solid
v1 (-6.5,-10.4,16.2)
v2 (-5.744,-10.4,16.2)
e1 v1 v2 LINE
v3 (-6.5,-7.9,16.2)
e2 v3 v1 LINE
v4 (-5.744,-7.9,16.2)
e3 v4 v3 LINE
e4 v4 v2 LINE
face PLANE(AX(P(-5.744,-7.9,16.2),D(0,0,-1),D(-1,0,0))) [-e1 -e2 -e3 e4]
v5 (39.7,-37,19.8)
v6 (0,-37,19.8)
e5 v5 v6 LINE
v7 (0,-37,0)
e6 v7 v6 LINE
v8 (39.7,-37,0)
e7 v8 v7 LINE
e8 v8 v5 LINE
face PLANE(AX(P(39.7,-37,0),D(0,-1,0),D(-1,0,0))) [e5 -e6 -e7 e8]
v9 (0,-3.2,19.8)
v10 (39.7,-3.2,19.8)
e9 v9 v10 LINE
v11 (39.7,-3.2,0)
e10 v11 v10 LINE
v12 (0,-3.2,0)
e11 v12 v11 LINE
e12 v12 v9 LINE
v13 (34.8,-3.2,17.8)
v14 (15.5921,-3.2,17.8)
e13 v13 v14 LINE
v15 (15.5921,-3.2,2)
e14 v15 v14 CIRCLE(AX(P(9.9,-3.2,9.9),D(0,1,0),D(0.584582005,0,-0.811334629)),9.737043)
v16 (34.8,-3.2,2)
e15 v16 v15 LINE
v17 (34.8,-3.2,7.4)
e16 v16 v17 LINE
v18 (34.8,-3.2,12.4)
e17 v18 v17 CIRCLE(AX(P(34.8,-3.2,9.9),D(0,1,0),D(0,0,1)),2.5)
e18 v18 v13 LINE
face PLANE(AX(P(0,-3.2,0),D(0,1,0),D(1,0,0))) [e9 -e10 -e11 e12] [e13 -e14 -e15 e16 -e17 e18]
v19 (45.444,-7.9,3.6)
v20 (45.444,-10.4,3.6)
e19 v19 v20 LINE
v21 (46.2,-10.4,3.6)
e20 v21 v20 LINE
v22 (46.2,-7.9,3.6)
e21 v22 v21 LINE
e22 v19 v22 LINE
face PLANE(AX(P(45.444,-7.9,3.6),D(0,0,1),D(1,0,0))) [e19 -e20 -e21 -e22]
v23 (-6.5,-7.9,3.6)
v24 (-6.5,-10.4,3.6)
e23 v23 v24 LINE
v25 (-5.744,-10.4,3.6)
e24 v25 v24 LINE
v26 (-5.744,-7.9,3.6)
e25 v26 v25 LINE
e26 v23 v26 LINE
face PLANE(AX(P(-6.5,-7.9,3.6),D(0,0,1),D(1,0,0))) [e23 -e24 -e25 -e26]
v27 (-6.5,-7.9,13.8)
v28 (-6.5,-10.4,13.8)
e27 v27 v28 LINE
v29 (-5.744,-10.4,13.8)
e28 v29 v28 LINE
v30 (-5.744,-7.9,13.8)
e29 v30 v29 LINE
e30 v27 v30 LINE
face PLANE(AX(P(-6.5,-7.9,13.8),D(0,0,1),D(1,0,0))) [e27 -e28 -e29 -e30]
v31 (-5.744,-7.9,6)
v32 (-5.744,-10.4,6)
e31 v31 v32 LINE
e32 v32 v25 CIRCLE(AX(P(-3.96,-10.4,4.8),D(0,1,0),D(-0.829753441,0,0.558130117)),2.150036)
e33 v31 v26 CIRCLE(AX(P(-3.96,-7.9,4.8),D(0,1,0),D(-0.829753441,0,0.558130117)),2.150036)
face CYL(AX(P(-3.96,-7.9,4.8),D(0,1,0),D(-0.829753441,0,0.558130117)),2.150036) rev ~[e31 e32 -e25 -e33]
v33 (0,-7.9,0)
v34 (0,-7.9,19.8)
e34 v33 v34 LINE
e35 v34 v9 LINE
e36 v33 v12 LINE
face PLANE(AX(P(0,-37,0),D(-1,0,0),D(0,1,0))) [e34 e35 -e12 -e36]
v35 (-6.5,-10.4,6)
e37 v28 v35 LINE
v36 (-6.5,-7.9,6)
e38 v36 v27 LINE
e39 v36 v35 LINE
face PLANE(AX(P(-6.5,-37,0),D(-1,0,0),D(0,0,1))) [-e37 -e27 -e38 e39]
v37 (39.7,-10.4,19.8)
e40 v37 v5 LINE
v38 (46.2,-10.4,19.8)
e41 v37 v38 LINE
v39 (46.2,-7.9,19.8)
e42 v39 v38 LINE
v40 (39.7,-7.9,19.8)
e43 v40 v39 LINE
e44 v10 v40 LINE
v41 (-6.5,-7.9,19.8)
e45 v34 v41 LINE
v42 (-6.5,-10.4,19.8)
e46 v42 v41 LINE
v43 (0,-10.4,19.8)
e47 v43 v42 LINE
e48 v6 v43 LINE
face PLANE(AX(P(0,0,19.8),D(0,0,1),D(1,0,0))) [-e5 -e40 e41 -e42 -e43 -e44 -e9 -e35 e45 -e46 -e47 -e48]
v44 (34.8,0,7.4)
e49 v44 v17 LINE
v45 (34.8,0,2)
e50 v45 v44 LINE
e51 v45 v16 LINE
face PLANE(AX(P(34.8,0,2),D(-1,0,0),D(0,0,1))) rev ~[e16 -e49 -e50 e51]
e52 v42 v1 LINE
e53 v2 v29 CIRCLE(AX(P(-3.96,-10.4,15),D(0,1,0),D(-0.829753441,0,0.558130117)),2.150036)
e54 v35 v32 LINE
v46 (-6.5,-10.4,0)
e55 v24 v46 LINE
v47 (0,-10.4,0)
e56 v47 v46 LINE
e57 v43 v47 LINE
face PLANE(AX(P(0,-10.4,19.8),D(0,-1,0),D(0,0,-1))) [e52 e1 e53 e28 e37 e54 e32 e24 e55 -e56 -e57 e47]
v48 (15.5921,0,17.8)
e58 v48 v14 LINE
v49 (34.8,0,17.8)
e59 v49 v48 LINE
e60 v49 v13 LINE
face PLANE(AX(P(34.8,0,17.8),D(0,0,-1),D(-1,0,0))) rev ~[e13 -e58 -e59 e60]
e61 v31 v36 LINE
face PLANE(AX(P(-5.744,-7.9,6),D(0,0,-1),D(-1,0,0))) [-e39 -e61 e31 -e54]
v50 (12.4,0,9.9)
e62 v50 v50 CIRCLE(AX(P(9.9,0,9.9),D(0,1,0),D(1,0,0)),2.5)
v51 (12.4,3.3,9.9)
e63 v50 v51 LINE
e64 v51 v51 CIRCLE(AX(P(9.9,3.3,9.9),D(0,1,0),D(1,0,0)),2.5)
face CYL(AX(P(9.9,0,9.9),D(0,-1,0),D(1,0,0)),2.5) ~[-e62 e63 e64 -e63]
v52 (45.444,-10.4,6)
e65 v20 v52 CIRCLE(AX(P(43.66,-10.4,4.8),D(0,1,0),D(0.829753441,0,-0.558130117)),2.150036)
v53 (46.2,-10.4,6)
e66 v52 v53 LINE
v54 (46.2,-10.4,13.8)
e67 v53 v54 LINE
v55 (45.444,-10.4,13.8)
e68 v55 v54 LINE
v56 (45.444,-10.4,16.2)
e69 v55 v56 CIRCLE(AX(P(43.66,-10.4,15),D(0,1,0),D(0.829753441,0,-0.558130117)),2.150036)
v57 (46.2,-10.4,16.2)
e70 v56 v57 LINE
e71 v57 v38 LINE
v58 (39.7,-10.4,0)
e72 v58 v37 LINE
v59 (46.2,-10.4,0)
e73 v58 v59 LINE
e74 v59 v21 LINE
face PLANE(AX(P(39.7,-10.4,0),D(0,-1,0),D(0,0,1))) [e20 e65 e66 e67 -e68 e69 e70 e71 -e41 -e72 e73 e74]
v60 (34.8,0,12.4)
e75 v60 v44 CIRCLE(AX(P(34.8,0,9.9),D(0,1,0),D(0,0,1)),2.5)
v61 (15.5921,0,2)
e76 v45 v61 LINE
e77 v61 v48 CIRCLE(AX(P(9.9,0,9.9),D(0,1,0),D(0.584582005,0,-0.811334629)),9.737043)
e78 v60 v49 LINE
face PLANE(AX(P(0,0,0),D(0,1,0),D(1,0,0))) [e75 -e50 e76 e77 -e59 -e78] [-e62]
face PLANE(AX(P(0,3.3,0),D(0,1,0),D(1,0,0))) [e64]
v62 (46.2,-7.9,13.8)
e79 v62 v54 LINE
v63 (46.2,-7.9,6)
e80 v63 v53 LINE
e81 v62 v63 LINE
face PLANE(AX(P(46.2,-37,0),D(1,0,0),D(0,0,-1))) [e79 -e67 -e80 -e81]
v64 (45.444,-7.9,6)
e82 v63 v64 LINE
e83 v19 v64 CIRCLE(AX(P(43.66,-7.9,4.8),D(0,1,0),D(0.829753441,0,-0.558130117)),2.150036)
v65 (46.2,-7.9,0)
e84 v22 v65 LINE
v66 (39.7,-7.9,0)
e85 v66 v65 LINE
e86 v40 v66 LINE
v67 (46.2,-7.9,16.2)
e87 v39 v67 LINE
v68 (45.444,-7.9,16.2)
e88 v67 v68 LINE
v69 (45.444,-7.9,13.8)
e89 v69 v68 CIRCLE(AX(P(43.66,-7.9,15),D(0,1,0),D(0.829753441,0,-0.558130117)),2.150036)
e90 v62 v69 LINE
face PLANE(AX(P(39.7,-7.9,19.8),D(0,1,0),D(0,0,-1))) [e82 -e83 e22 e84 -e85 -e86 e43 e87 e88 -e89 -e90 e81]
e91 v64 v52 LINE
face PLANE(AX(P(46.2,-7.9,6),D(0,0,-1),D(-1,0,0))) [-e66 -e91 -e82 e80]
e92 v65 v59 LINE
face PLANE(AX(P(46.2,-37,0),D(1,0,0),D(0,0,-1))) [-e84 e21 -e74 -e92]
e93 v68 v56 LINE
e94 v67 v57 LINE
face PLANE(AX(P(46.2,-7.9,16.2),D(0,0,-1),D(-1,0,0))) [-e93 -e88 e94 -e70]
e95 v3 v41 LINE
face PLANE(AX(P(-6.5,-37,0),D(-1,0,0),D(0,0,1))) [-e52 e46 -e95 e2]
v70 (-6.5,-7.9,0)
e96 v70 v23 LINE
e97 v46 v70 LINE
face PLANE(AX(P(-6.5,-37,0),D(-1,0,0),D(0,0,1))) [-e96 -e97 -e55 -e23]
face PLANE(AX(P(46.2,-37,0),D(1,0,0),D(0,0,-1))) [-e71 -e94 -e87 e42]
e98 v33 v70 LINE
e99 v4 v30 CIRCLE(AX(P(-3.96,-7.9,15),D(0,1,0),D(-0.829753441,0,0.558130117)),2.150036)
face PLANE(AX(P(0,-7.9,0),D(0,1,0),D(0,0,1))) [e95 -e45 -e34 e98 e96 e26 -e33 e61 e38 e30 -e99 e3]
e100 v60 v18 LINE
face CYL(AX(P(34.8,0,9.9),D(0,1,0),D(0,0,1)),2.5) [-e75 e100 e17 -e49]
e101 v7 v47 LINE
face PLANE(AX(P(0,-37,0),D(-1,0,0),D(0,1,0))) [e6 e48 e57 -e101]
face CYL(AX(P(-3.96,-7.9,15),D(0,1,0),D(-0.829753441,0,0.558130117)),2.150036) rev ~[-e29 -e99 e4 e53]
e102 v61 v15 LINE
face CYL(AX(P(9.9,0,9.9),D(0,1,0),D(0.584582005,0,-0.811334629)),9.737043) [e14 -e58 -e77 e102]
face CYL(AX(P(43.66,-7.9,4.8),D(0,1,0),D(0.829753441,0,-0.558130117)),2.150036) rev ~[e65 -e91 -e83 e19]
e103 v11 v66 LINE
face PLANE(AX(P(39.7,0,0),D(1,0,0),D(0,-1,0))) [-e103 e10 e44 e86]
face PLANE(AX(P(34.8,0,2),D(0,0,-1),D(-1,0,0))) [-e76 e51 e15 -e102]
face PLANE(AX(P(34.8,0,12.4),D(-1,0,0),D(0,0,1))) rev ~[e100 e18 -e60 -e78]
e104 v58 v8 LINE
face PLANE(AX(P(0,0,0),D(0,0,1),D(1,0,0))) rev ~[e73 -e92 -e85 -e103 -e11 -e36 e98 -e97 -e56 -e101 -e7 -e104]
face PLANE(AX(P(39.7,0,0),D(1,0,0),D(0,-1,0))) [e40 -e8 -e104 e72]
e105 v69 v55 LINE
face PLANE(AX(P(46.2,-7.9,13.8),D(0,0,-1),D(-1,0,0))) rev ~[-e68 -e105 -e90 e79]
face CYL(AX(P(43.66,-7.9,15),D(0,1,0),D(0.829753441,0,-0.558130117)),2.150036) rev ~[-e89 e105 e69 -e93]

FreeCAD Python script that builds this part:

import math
import FreeCAD as App
import Part
import Sketcher

V = App.Vector
Q = App.Units.Quantity

doc = App.newDocument("Part")
body = doc.addObject("PartDesign::Body", "Body")

# Sketch on XY plane
sketch1 = body.newObject("Sketcher::SketchObject", "Sketch")
sketch1.AttachmentSupport = (doc.getObject("XY_Plane"), [""])
sketch1.MapMode = "FlatFace"
sketch1.addGeometry(Part.LineSegment(V(40, 0, 0), V(0, 0, 0)), False)
sketch1.addGeometry(Part.LineSegment(V(0, 0, 0), V(0, -37, 0)), False)
sketch1.addGeometry(Part.LineSegment(V(0, -37, 0), V(40, -37, 0)), False)
sketch1.addGeometry(Part.LineSegment(V(40, -37, 0), V(40, 0, 0)), False)
sketch1.addConstraint(Sketcher.Constraint("Coincident", 0, 2, 1, 1))
sketch1.addConstraint(Sketcher.Constraint("Coincident", 1, 2, 2, 1))
sketch1.addConstraint(Sketcher.Constraint("Coincident", 2, 2, 3, 1))
sketch1.addConstraint(Sketcher.Constraint("Coincident", 3, 2, 0, 1))
sketch1.addConstraint(Sketcher.Constraint("Horizontal", 0))
sketch1.addConstraint(Sketcher.Constraint("Vertical", 1))
sketch1.addConstraint(Sketcher.Constraint("Horizontal", 2))
sketch1.addConstraint(Sketcher.Constraint("Vertical", 3))
sketch1.addConstraint(Sketcher.Constraint("Coincident", 0, 2, -1, 1))
sketch1.addConstraint(Sketcher.Constraint("DistanceY", 1, 2, 1, 1, Q("37 mm")))
sketch1.addConstraint(Sketcher.Constraint("DistanceX", 0, 2, 0, 1, Q("39.7 mm")))
pad1 = body.newObject("PartDesign::Pad", "Pad")
pad1.Profile = sketch1
pad1.Length = 19.8

# Sketch on YZ plane
sketch2 = body.newObject("Sketcher::SketchObject", "Sketch001")
sketch2.AttachmentSupport = (doc.getObject("YZ_Plane"), [""])
sketch2.MapMode = "FlatFace"
sketch2.AttachmentOffset = App.Placement(V(0, 0, 39.7), App.Rotation())
sketch2.addGeometry(Part.LineSegment(V(-7.9, 0, 0), V(-7.9, 19.8, 0)), False)
sketch2.addGeometry(Part.LineSegment(V(-7.9, 19.8, 0), V(-10.4, 19.8, 0)), False)
sketch2.addGeometry(Part.LineSegment(V(-10.4, 19.8, 0), V(-10.4, 0, 0)), False)
sketch2.addGeometry(Part.LineSegment(V(-10.4, 0, 0), V(-7.9, 0, 0)), False)
sketch2.addConstraint(Sketcher.Constraint("Coincident", 0, 2, 1, 1))
sketch2.addConstraint(Sketcher.Constraint("Coincident", 1, 2, 2, 1))
sketch2.addConstraint(Sketcher.Constraint("Coincident", 2, 2, 3, 1))
sketch2.addConstraint(Sketcher.Constraint("Coincident", 3, 2, 0, 1))
sketch2.addConstraint(Sketcher.Constraint("Vertical", 0))
sketch2.addConstraint(Sketcher.Constraint("Horizontal", 1))
sketch2.addConstraint(Sketcher.Constraint("Vertical", 2))
sketch2.addConstraint(Sketcher.Constraint("Horizontal", 3))
sketch2.addConstraint(Sketcher.Constraint("PointOnObject", 2, 2, -1))
sketch2.addConstraint(Sketcher.Constraint("DistanceX", 1, 2, 1, 1, Q("2.5 mm")))
sketch2.addConstraint(Sketcher.Constraint("DistanceX", 1, 2, -1, 1, Q("10.4 mm")))
sketch2.addConstraint(Sketcher.Constraint("DistanceY", 0, 1, 0, 2, Q("19.8 mm")))
pad2 = body.newObject("PartDesign::Pad", "Pad001")
pad2.Profile = sketch2
pad2.Length = 6.5

# Sketch on XZ plane
sketch3 = body.newObject("Sketcher::SketchObject", "Sketch002")
sketch3.AttachmentSupport = (doc.getObject("XZ_Plane"), [""])
sketch3.MapMode = "FlatFace"
sketch3.AttachmentOffset = App.Placement(V(0, 0, 7.9), App.Rotation())
sketch3.addGeometry(Part.LineSegment(V(45.4, 16.2, 0), V(46.2, 16.2, 0)), False)
sketch3.addGeometry(Part.LineSegment(V(46.2, 16.2, 0), V(46.2, 13.8, 0)), False)
sketch3.addGeometry(Part.LineSegment(V(46.2, 13.8, 0), V(45.4, 13.8, 0)), False)
sketch3.addGeometry(Part.ArcOfCircle(Part.Circle(V(43.7, 15, 0), V(0, 0, 1), 2.2), math.radians(34), math.radians(326)), False)
sketch3.addGeometry(Part.LineSegment(V(45.4, 6, 0), V(46.2, 6, 0)), False)
sketch3.addGeometry(Part.LineSegment(V(46.2, 6, 0), V(46.2, 3.6, 0)), False)
sketch3.addGeometry(Part.LineSegment(V(46.2, 3.6, 0), V(45.4, 3.6, 0)), False)
sketch3.addGeometry(Part.ArcOfCircle(Part.Circle(V(43.7, 4.8, 0), V(0, 0, 1), 2.2), math.radians(34), math.radians(326)), False)
sketch3.addConstraint(Sketcher.Constraint("Coincident", 0, 2, 1, 1))
sketch3.addConstraint(Sketcher.Constraint("Coincident", 1, 2, 2, 1))
sketch3.addConstraint(Sketcher.Constraint("Coincident", 2, 2, 3, 2))
sketch3.addConstraint(Sketcher.Constraint("Coincident", 3, 1, 0, 1))
sketch3.addConstraint(Sketcher.Constraint("Coincident", 4, 2, 5, 1))
sketch3.addConstraint(Sketcher.Constraint("Coincident", 5, 2, 6, 1))
sketch3.addConstraint(Sketcher.Constraint("Coincident", 6, 2, 7, 2))
sketch3.addConstraint(Sketcher.Constraint("Coincident", 7, 1, 4, 1))
sketch3.addConstraint(Sketcher.Constraint("Horizontal", 0))
sketch3.addConstraint(Sketcher.Constraint("Vertical", 1))
sketch3.addConstraint(Sketcher.Constraint("Horizontal", 2))
sketch3.addConstraint(Sketcher.Constraint("Horizontal", 4))
sketch3.addConstraint(Sketcher.Constraint("Vertical", 5))
sketch3.addConstraint(Sketcher.Constraint("Horizontal", 6))
sketch3.addConstraint(Sketcher.Constraint("Equal", 3, 7))
sketch3.addConstraint(Sketcher.Constraint("Vertical", 3, 3, 7, 3))
sketch3.addConstraint(Sketcher.Constraint("Vertical", 2, 2, 3, 1))
sketch3.addConstraint(Sketcher.Constraint("Vertical", 1, 2, 4, 2))
sketch3.addConstraint(Sketcher.Constraint("Vertical", 3, 1, 6, 2))
sketch3.addConstraint(Sketcher.Constraint("Vertical", 6, 2, 7, 1))
sketch3.addConstraint(Sketcher.Constraint("Radius", 3, Q("2.15 mm")))
sketch3.addConstraint(Sketcher.Constraint("DistanceY", 1, 2, 1, 1, Q("2.4 mm")))
sketch3.addConstraint(Sketcher.Constraint("DistanceY", -1, 1, 3, 3, Q("15 mm")))
sketch3.addConstraint(Sketcher.Constraint("DistanceY", -1, 1, 4, 2, Q("6 mm")))
sketch3.addConstraint(Sketcher.Constraint("DistanceX", -1, 1, 0, 2, Q("46.2 mm")))
sketch3.addConstraint(Sketcher.Constraint("DistanceX", 0, 1, 0, 2, Q("0.756 mm")))
pocket1 = body.newObject("PartDesign::Pocket", "Pocket")
pocket1.Profile = sketch3
pocket1.Length = 6.5
pocket1.Reversed = True

# Sketch on YZ plane
sketch4 = body.newObject("Sketcher::SketchObject", "Sketch003")
sketch4.AttachmentSupport = (doc.getObject("YZ_Plane"), [""])
sketch4.MapMode = "FlatFace"
sketch4.addGeometry(Part.LineSegment(V(-10.4, 0, 0), V(-10.4, 19.8, 0)), False)
sketch4.addGeometry(Part.LineSegment(V(-10.4, 19.8, 0), V(-7.9, 19.8, 0)), False)
sketch4.addGeometry(Part.LineSegment(V(-7.9, 19.8, 0), V(-7.9, 0, 0)), False)
sketch4.addGeometry(Part.LineSegment(V(-7.9, 0, 0), V(-10.4, 0, 0)), False)
sketch4.addConstraint(Sketcher.Constraint("Coincident", 0, 2, 1, 1))
sketch4.addConstraint(Sketcher.Constraint("Coincident", 1, 2, 2, 1))
sketch4.addConstraint(Sketcher.Constraint("Coincident", 2, 2, 3, 1))
sketch4.addConstraint(Sketcher.Constraint("Coincident", 3, 2, 0, 1))
sketch4.addConstraint(Sketcher.Constraint("Vertical", 0))
sketch4.addConstraint(Sketcher.Constraint("Horizontal", 1))
sketch4.addConstraint(Sketcher.Constraint("Vertical", 2))
sketch4.addConstraint(Sketcher.Constraint("Horizontal", 3))
sketch4.addConstraint(Sketcher.Constraint("PointOnObject", 2, 2, -1))
sketch4.addConstraint(Sketcher.Constraint("DistanceX", 1, 1, 1, 2, Q("2.5 mm")))
sketch4.addConstraint(Sketcher.Constraint("DistanceX", 0, 2, -1, 1, Q("10.4 mm")))
sketch4.addConstraint(Sketcher.Constraint("DistanceY", 0, 1, 0, 2, Q("19.8 mm")))
pad3 = body.newObject("PartDesign::Pad", "Pad002")
pad3.Profile = sketch4
pad3.Length = 6.5
pad3.Reversed = True

# Sketch on XZ plane
sketch5 = body.newObject("Sketcher::SketchObject", "Sketch004")
sketch5.AttachmentSupport = (doc.getObject("XZ_Plane"), [""])
sketch5.MapMode = "FlatFace"
sketch5.AttachmentOffset = App.Placement(V(0, 0, 7.9), App.Rotation())
sketch5.addGeometry(Part.LineSegment(V(-5.7, 3.6, 0), V(-6.5, 3.6, 0)), False)
sketch5.addGeometry(Part.LineSegment(V(-6.5, 3.6, 0), V(-6.5, 6, 0)), False)
sketch5.addGeometry(Part.LineSegment(V(-6.5, 6, 0), V(-5.7, 6, 0)), False)
sketch5.addGeometry(Part.ArcOfCircle(Part.Circle(V(-4, 4.8, 0), V(0, 0, 1), 2.2), math.radians(-146), math.radians(146)), False)
sketch5.addGeometry(Part.LineSegment(V(-5.7, 13.8, 0), V(-6.5, 13.8, 0)), False)
sketch5.addGeometry(Part.LineSegment(V(-6.5, 13.8, 0), V(-6.5, 16.2, 0)), False)
sketch5.addGeometry(Part.LineSegment(V(-6.5, 16.2, 0), V(-5.7, 16.2, 0)), False)
sketch5.addGeometry(Part.ArcOfCircle(Part.Circle(V(-4, 15, 0), V(0, 0, 1), 2.2), math.radians(-146), math.radians(146)), False)
sketch5.addConstraint(Sketcher.Constraint("Coincident", 0, 2, 1, 1))
sketch5.addConstraint(Sketcher.Constraint("Coincident", 1, 2, 2, 1))
sketch5.addConstraint(Sketcher.Constraint("Coincident", 2, 2, 3, 2))
sketch5.addConstraint(Sketcher.Constraint("Coincident", 3, 1, 0, 1))
sketch5.addConstraint(Sketcher.Constraint("Coincident", 4, 2, 5, 1))
sketch5.addConstraint(Sketcher.Constraint("Coincident", 5, 2, 6, 1))
sketch5.addConstraint(Sketcher.Constraint("Coincident", 6, 2, 7, 2))
sketch5.addConstraint(Sketcher.Constraint("Coincident", 7, 1, 4, 1))
sketch5.addConstraint(Sketcher.Constraint("Horizontal", 0))
sketch5.addConstraint(Sketcher.Constraint("Vertical", 1))
sketch5.addConstraint(Sketcher.Constraint("Horizontal", 2))
sketch5.addConstraint(Sketcher.Constraint("Horizontal", 4))
sketch5.addConstraint(Sketcher.Constraint("Vertical", 5))
sketch5.addConstraint(Sketcher.Constraint("Horizontal", 6))
sketch5.addConstraint(Sketcher.Constraint("Equal", 3, 7))
sketch5.addConstraint(Sketcher.Constraint("Vertical", 3, 3, 7, 3))
sketch5.addConstraint(Sketcher.Constraint("Vertical", 2, 2, 3, 1))
sketch5.addConstraint(Sketcher.Constraint("Vertical", 1, 2, 4, 2))
sketch5.addConstraint(Sketcher.Constraint("Vertical", 3, 1, 6, 2))
sketch5.addConstraint(Sketcher.Constraint("Vertical", 6, 2, 7, 1))
sketch5.addConstraint(Sketcher.Constraint("Radius", 3, Q("2.15 mm")))
sketch5.addConstraint(Sketcher.Constraint("DistanceY", 1, 1, 1, 2, Q("2.4 mm")))
sketch5.addConstraint(Sketcher.Constraint("DistanceY", -1, 1, 7, 3, Q("15 mm")))
sketch5.addConstraint(Sketcher.Constraint("DistanceY", -1, 1, 1, 2, Q("6 mm")))
sketch5.addConstraint(Sketcher.Constraint("DistanceX", 0, 2, -1, 1, Q("6.5 mm")))
sketch5.addConstraint(Sketcher.Constraint("DistanceX", 0, 2, 0, 1, Q("0.756 mm")))
pocket2 = body.newObject("PartDesign::Pocket", "Pocket001")
pocket2.Profile = sketch5
pocket2.Length = 6.5
pocket2.Reversed = True

# Sketch on XZ plane
sketch6 = body.newObject("Sketcher::SketchObject", "Sketch005")
sketch6.AttachmentSupport = (doc.getObject("XZ_Plane"), [""])
sketch6.MapMode = "FlatFace"
sketch6.addGeometry(Part.Circle(V(9.9, 9.9, 0), V(0, 0, 1), 2.5), False)
sketch6.addConstraint(Sketcher.Constraint("Diameter", 0, Q("5 mm")))
sketch6.addConstraint(Sketcher.Constraint("DistanceX", -1, 1, 0, 3, Q("9.9 mm")))
sketch6.addConstraint(Sketcher.Constraint("DistanceY", -1, 1, 0, 3, Q("9.9 mm")))
pad4 = body.newObject("PartDesign::Pad", "Pad003")
pad4.Profile = sketch6
pad4.Length = 3.3
pad4.Reversed = True

# Sketch on XZ plane
sketch7 = body.newObject("Sketcher::SketchObject", "Sketch006")
sketch7.AttachmentSupport = (doc.getObject("XZ_Plane"), [""])
sketch7.MapMode = "FlatFace"
sketch7.addGeometry(Part.LineSegment(V(0, 0, 0), V(0, 19.8, 0)), False)
sketch7.addGeometry(Part.LineSegment(V(0, 19.8, 0), V(39.7, 19.8, 0)), False)
sketch7.addGeometry(Part.LineSegment(V(39.7, 19.8, 0), V(39.7, 0, 0)), False)
sketch7.addGeometry(Part.LineSegment(V(39.7, 0, 0), V(0, 0, 0)), False)
sketch7.addGeometry(Part.ArcOfCircle(Part.Circle(V(9.9, 9.9, 0), V(0, 0, 1), 9.7), math.radians(54), math.radians(306)), False)
sketch7.addGeometry(Part.LineSegment(V(15.6, 2, 0), V(34.8, 2, 0)), False)
sketch7.addGeometry(Part.LineSegment(V(34.8, 2, 0), V(34.8, 7.4, 0)), False)
sketch7.addGeometry(Part.ArcOfCircle(Part.Circle(V(34.8, 9.9, 0), V(0, 0, 1), 2.5), math.radians(-90), math.radians(90)), False)
sketch7.addGeometry(Part.LineSegment(V(34.8, 12.4, 0), V(34.8, 17.8, 0)), False)
sketch7.addGeometry(Part.LineSegment(V(34.8, 17.8, 0), V(15.6, 17.8, 0)), False)
sketch7.addConstraint(Sketcher.Constraint("Coincident", 0, 2, 1, 1))
sketch7.addConstraint(Sketcher.Constraint("Coincident", 1, 2, 2, 1))
sketch7.addConstraint(Sketcher.Constraint("Coincident", 2, 2, 3, 1))
sketch7.addConstraint(Sketcher.Constraint("Coincident", 3, 2, 0, 1))
sketch7.addConstraint(Sketcher.Constraint("Coincident", 4, 2, 5, 1))
sketch7.addConstraint(Sketcher.Constraint("Coincident", 5, 2, 6, 1))
sketch7.addConstraint(Sketcher.Constraint("Coincident", 6, 2, 7, 1))
sketch7.addConstraint(Sketcher.Constraint("Coincident", 7, 2, 8, 1))
sketch7.addConstraint(Sketcher.Constraint("Coincident", 8, 2, 9, 1))
sketch7.addConstraint(Sketcher.Constraint("Coincident", 9, 2, 4, 1))
sketch7.addConstraint(Sketcher.Constraint("Vertical", 0))
sketch7.addConstraint(Sketcher.Constraint("Horizontal", 1))
sketch7.addConstraint(Sketcher.Constraint("Vertical", 2))
sketch7.addConstraint(Sketcher.Constraint("Horizontal", 3))
sketch7.addConstraint(Sketcher.Constraint("Horizontal", 5))
sketch7.addConstraint(Sketcher.Constraint("Vertical", 6))
sketch7.addConstraint(Sketcher.Constraint("Vertical", 8))
sketch7.addConstraint(Sketcher.Constraint("Horizontal", 9))
sketch7.addConstraint(Sketcher.Constraint("Coincident", 3, 2, -1, 1))
sketch7.addConstraint(Sketcher.Constraint("Horizontal", 4, 3, 7, 3))
sketch7.addConstraint(Sketcher.Constraint("Vertical", 7, 3, 5, 2))
sketch7.addConstraint(Sketcher.Constraint("Vertical", 6, 2, 7, 2))
sketch7.addConstraint(Sketcher.Constraint("Vertical", 4, 2, 9, 2))
sketch7.addConstraint(Sketcher.Constraint("Radius", 7, Q("2.5 mm")))
sketch7.addConstraint(Sketcher.Constraint("DistanceY", -1, 1, 4, 2, Q("2 mm")))
sketch7.addConstraint(Sketcher.Constraint("DistanceY", 8, 2, 1, 2, Q("2 mm")))
sketch7.addConstraint(Sketcher.Constraint("DistanceX", 1, 1, 1, 2, Q("39.7 mm")))
sketch7.addConstraint(Sketcher.Constraint("DistanceY", 0, 1, 0, 2, Q("19.8 mm")))
sketch7.addConstraint(Sketcher.Constraint("Radius", 4, Q("9.737 mm")))
sketch7.addConstraint(Sketcher.Constraint("DistanceX", -1, 1, 4, 3, Q("9.9 mm")))
sketch7.addConstraint(Sketcher.Constraint("DistanceX", -1, 1, 7, 3, Q("34.8 mm")))
pocket3 = body.newObject("PartDesign::Pocket", "Pocket002")
pocket3.Profile = sketch7
pocket3.Length = 3.2
pocket3.Reversed = True

doc.recompute()
